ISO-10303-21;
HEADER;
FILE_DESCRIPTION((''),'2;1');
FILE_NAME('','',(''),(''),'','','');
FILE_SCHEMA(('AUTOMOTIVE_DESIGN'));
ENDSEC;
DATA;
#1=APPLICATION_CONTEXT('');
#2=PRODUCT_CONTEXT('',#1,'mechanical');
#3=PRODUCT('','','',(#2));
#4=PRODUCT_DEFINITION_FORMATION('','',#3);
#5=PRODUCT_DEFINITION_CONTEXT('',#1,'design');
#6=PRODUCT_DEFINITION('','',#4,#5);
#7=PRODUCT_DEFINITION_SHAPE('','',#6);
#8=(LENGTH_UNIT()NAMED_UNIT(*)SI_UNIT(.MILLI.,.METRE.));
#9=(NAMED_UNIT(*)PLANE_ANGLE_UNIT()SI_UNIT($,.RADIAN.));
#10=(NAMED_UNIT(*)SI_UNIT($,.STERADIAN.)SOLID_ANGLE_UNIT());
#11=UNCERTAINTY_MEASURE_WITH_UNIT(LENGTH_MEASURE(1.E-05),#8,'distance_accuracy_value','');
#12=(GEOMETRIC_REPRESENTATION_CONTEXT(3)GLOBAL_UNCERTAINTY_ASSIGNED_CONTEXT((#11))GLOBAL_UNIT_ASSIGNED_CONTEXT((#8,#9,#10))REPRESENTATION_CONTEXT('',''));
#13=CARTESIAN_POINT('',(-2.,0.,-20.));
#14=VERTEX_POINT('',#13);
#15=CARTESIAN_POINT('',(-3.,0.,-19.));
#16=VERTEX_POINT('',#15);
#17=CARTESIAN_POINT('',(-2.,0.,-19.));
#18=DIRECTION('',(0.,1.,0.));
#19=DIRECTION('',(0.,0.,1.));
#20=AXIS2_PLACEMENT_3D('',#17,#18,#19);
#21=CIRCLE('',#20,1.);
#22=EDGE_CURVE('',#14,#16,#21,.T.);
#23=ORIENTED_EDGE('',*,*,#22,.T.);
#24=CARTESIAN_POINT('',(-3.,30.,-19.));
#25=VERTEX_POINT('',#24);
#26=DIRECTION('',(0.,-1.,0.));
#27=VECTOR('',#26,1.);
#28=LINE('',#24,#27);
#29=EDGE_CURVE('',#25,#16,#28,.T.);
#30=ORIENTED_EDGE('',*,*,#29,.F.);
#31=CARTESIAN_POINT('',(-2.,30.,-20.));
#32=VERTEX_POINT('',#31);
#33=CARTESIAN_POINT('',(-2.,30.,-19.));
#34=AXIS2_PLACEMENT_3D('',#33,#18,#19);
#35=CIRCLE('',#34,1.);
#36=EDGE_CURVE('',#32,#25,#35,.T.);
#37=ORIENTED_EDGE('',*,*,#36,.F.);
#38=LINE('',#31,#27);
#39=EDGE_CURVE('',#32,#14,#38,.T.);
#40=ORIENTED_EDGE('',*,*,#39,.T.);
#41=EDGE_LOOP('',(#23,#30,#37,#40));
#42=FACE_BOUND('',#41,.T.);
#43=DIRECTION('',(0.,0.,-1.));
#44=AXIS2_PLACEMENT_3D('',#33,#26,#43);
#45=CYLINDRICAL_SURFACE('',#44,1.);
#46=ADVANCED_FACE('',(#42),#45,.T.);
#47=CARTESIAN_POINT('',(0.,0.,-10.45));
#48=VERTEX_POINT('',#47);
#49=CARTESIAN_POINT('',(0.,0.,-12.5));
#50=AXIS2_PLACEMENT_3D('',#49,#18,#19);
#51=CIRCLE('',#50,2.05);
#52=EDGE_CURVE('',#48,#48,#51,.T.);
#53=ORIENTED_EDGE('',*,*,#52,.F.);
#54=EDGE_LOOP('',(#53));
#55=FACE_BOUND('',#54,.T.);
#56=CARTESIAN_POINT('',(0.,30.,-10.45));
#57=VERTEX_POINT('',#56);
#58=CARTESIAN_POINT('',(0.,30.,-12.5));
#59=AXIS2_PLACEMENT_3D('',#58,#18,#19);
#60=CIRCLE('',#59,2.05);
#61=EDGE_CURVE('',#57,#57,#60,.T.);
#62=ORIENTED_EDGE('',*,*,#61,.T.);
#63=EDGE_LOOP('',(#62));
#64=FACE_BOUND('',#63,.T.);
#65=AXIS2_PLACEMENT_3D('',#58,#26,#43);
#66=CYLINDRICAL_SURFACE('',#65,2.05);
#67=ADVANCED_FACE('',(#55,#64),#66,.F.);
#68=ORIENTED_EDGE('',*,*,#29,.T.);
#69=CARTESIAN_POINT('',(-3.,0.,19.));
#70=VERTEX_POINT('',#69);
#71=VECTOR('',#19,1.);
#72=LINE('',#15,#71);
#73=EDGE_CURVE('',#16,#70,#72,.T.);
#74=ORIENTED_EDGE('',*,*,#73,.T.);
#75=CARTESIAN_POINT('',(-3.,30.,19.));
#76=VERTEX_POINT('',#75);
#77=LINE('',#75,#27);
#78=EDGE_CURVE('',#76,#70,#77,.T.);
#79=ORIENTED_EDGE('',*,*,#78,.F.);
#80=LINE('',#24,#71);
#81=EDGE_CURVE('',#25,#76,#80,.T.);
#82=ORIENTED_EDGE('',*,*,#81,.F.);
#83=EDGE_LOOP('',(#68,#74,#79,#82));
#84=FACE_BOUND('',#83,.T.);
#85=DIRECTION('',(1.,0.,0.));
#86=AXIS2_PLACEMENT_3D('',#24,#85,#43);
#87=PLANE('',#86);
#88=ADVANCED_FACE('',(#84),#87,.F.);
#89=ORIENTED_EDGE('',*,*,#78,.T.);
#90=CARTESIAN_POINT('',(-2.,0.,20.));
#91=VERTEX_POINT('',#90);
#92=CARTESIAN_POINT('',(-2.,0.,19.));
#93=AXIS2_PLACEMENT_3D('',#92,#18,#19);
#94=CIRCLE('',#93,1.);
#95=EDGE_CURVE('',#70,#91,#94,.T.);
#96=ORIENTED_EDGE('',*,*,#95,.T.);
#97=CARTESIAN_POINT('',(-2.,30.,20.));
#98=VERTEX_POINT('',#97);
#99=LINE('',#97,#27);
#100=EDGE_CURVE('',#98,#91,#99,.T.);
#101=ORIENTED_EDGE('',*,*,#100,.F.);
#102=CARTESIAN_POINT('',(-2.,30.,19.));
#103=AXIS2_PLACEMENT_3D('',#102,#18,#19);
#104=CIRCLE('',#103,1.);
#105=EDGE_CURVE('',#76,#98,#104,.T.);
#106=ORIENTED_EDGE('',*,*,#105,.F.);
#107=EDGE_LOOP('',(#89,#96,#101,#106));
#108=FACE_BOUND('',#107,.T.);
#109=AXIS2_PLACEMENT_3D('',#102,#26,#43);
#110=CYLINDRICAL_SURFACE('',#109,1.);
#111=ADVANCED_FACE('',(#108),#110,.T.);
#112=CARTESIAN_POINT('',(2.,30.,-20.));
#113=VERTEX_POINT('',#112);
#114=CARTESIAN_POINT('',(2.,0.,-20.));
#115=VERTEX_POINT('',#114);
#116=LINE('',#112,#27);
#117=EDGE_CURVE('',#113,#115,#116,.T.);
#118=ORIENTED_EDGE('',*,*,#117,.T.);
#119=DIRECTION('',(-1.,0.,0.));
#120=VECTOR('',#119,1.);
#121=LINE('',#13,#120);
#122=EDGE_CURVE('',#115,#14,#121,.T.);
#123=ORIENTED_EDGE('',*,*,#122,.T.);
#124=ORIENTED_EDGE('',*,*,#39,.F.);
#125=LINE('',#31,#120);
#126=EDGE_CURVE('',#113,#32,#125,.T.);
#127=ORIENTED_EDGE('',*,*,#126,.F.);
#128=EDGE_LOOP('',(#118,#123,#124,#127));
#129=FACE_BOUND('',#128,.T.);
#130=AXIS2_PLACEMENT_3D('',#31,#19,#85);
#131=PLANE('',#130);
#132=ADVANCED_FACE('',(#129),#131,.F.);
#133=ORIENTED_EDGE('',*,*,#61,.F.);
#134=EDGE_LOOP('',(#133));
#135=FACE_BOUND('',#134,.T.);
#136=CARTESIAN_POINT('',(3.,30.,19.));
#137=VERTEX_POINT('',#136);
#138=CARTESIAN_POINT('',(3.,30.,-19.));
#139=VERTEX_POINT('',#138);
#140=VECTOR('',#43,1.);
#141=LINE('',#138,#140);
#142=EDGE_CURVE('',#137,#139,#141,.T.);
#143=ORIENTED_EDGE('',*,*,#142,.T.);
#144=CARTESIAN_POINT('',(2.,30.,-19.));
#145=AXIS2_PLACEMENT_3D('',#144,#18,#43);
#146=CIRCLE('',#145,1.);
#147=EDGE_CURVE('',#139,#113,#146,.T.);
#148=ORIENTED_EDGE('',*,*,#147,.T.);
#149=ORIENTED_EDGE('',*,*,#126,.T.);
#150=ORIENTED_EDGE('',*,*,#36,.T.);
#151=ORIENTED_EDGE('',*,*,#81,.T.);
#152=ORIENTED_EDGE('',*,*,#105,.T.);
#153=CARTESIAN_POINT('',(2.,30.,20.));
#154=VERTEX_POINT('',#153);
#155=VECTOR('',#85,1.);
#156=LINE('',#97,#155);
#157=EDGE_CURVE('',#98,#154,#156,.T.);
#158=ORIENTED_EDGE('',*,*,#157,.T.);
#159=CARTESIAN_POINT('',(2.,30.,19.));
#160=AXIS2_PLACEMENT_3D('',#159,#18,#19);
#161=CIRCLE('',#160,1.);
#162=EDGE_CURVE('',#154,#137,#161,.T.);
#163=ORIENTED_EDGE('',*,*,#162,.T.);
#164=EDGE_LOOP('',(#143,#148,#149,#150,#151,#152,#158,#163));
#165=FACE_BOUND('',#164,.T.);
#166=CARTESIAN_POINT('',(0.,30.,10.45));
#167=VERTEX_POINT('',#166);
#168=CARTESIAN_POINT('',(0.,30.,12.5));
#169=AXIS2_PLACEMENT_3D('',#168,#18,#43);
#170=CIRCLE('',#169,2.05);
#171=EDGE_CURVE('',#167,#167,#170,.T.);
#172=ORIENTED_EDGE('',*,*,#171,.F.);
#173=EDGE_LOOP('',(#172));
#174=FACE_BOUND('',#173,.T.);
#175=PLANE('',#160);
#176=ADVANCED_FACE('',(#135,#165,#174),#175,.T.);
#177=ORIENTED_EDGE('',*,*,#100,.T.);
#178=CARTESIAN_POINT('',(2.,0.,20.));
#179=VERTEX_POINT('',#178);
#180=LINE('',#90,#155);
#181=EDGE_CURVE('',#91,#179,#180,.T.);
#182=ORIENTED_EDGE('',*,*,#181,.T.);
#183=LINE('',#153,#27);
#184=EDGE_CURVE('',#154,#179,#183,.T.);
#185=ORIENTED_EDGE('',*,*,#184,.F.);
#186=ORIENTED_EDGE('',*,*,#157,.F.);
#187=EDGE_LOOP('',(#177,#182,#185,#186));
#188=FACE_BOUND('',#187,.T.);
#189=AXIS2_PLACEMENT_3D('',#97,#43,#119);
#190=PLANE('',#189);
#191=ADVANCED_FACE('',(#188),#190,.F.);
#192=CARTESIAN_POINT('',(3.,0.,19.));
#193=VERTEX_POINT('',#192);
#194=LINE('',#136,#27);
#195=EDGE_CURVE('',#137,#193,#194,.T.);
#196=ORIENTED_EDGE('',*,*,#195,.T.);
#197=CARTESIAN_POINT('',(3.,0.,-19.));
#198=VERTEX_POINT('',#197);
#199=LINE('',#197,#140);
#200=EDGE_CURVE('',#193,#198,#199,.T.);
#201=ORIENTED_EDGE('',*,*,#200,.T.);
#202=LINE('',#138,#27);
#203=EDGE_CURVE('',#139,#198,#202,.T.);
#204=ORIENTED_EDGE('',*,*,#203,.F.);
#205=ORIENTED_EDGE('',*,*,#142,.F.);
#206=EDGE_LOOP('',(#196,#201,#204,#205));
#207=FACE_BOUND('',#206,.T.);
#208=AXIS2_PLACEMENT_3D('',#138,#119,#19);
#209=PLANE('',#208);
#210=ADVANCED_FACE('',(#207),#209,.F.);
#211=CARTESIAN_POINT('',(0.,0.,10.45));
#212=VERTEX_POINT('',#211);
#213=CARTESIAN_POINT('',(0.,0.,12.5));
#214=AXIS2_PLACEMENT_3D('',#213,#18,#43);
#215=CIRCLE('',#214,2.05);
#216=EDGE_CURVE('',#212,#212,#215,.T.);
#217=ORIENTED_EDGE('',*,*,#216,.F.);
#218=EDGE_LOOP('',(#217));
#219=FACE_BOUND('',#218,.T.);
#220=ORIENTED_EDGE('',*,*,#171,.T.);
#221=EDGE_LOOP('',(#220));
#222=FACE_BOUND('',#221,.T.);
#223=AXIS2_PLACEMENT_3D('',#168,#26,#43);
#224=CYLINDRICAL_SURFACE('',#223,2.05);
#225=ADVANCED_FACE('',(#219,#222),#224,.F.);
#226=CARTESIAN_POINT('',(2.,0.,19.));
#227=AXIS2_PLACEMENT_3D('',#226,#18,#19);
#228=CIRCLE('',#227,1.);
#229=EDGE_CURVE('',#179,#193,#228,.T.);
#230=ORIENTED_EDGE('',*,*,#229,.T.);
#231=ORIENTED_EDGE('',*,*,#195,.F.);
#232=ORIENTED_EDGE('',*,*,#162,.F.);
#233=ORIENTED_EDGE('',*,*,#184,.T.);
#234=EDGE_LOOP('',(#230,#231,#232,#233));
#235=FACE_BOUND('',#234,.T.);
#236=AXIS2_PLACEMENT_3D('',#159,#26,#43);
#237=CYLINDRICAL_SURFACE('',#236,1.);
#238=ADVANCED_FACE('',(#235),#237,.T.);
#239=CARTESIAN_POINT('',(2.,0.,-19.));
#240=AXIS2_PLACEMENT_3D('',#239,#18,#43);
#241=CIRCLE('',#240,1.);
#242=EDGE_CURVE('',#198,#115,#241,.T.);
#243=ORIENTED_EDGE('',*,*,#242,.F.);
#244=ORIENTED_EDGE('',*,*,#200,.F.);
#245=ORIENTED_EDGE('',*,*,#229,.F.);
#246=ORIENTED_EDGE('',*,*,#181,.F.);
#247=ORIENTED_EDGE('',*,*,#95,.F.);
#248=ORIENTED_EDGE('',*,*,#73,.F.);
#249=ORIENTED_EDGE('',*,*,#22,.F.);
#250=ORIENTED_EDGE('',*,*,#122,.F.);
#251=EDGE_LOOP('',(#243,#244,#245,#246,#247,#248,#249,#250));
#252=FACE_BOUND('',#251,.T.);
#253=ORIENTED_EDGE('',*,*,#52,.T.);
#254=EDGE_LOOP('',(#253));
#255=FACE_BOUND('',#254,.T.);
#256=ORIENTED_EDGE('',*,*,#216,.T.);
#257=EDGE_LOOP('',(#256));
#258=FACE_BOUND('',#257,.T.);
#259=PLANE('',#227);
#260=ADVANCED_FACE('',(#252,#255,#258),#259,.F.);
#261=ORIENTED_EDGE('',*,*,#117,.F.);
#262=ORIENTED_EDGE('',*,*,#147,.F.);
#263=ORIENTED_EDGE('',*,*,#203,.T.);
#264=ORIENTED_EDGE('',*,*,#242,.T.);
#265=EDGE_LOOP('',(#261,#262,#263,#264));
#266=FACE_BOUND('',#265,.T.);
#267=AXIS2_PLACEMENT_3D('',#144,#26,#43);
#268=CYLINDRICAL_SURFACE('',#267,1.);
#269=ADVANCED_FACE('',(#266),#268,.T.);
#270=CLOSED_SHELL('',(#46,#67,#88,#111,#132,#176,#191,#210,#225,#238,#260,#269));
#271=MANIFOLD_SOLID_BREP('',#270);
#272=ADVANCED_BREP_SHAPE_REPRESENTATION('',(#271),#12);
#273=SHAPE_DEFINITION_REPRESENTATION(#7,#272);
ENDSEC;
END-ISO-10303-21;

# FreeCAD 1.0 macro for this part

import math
import FreeCAD as App
import Part
import Sketcher

V = App.Vector

doc = App.newDocument("Part")
params = doc.addObject("Spreadsheet::Sheet", "Params")
for row, (alias, value) in enumerate([
    ("sketch1_radius", "1 mm"),
    ("sketch1_diameter", "4.1 mm"),
    ("sketch1_width", "4 mm"),
    ("sketch1_height", "38 mm"),
    ("pad1_length", "30 mm"),
], start=1):
    params.set(f"A{row}", alias)
    params.set(f"B{row}", "=" + value)
    params.setAlias(f"B{row}", alias)

body = doc.addObject("PartDesign::Body", "Body")

sketch1 = body.newObject("Sketcher::SketchObject", "Sketch")
sketch1.AttachmentSupport = (doc.getObject("XZ_Plane"), [""])
sketch1.MapMode = "FlatFace"
sketch1.addGeometry(Part.LineSegment(V(2, -20, 0), V(-2, -20, 0)), False)
sketch1.addGeometry(Part.ArcOfCircle(Part.Circle(V(-2, -19, 0), V(0, 0, 1), 1), math.radians(-180), math.radians(-90)), False)
sketch1.addGeometry(Part.LineSegment(V(-3, -19, 0), V(-3, 19, 0)), False)
sketch1.addGeometry(Part.ArcOfCircle(Part.Circle(V(-2, 19, 0), V(0, 0, 1), 1), math.radians(90), math.radians(180)), False)
sketch1.addGeometry(Part.LineSegment(V(-2, 20, 0), V(2, 20, 0)), False)
sketch1.addGeometry(Part.ArcOfCircle(Part.Circle(V(2, 19, 0), V(0, 0, 1), 1), math.radians(0), math.radians(90)), False)
sketch1.addGeometry(Part.LineSegment(V(3, 19, 0), V(3, -19, 0)), False)
sketch1.addGeometry(Part.ArcOfCircle(Part.Circle(V(2, -19, 0), V(0, 0, 1), 1), math.radians(-90), math.radians(0)), False)
sketch1.addGeometry(Part.Circle(V(0, 12.5, 0), V(0, 0, 1), 2), False)
sketch1.addGeometry(Part.Circle(V(0, -12.5, 0), V(0, 0, 1), 2), False)
sketch1.addConstraint(Sketcher.Constraint("Tangent", 0, 2, 1, 2))
sketch1.addConstraint(Sketcher.Constraint("Tangent", 1, 1, 2, 1))
sketch1.addConstraint(Sketcher.Constraint("Tangent", 2, 2, 3, 2))
sketch1.addConstraint(Sketcher.Constraint("Tangent", 3, 1, 4, 1))
sketch1.addConstraint(Sketcher.Constraint("Tangent", 4, 2, 5, 2))
sketch1.addConstraint(Sketcher.Constraint("Tangent", 5, 1, 6, 1))
sketch1.addConstraint(Sketcher.Constraint("Tangent", 6, 2, 7, 2))
sketch1.addConstraint(Sketcher.Constraint("Tangent", 7, 1, 0, 1))
sketch1.addConstraint(Sketcher.Constraint("Horizontal", 0))
sketch1.addConstraint(Sketcher.Constraint("Vertical", 2))
sketch1.addConstraint(Sketcher.Constraint("Horizontal", 4))
sketch1.addConstraint(Sketcher.Constraint("Vertical", 6))
sketch1.addConstraint(Sketcher.Constraint("Equal", 1, 3))
sketch1.addConstraint(Sketcher.Constraint("Equal", 3, 5))
sketch1.addConstraint(Sketcher.Constraint("Equal", 5, 7))
sketch1.addConstraint(Sketcher.Constraint("Equal", 8, 9))
sketch1.addConstraint(Sketcher.Constraint("Symmetric", 1, 3, 5, 3, -1, 1))
sketch1.addConstraint(Sketcher.Constraint("Symmetric", 8, 3, 9, 3, -1, 1))
sketch1.addConstraint(Sketcher.Constraint("PointOnObject", 8, 3, -2))
sketch1.addConstraint(Sketcher.Constraint("Radius", 1, 1.0))
sketch1.addConstraint(Sketcher.Constraint("Diameter", 8, 4.1))
sketch1.addConstraint(Sketcher.Constraint("DistanceX", 0, 2, 0, 1, 4.0))
sketch1.addConstraint(Sketcher.Constraint("DistanceY", 2, 1, 2, 2, 38.0))
sketch1.addConstraint(Sketcher.Constraint("DistanceY", 9, 3, 8, 3, 25.0))
sketch1.setExpression("Constraints[19]", "Params.sketch1_radius")
sketch1.setExpression("Constraints[20]", "Params.sketch1_diameter")
sketch1.setExpression("Constraints[21]", "Params.sketch1_width")
sketch1.setExpression("Constraints[22]", "Params.sketch1_height")
pad1 = body.newObject("PartDesign::Pad", "Pad")
pad1.Profile = sketch1
pad1.setExpression("Length", "Params.pad1_length")
pad1.Reversed = True

doc.recompute()
